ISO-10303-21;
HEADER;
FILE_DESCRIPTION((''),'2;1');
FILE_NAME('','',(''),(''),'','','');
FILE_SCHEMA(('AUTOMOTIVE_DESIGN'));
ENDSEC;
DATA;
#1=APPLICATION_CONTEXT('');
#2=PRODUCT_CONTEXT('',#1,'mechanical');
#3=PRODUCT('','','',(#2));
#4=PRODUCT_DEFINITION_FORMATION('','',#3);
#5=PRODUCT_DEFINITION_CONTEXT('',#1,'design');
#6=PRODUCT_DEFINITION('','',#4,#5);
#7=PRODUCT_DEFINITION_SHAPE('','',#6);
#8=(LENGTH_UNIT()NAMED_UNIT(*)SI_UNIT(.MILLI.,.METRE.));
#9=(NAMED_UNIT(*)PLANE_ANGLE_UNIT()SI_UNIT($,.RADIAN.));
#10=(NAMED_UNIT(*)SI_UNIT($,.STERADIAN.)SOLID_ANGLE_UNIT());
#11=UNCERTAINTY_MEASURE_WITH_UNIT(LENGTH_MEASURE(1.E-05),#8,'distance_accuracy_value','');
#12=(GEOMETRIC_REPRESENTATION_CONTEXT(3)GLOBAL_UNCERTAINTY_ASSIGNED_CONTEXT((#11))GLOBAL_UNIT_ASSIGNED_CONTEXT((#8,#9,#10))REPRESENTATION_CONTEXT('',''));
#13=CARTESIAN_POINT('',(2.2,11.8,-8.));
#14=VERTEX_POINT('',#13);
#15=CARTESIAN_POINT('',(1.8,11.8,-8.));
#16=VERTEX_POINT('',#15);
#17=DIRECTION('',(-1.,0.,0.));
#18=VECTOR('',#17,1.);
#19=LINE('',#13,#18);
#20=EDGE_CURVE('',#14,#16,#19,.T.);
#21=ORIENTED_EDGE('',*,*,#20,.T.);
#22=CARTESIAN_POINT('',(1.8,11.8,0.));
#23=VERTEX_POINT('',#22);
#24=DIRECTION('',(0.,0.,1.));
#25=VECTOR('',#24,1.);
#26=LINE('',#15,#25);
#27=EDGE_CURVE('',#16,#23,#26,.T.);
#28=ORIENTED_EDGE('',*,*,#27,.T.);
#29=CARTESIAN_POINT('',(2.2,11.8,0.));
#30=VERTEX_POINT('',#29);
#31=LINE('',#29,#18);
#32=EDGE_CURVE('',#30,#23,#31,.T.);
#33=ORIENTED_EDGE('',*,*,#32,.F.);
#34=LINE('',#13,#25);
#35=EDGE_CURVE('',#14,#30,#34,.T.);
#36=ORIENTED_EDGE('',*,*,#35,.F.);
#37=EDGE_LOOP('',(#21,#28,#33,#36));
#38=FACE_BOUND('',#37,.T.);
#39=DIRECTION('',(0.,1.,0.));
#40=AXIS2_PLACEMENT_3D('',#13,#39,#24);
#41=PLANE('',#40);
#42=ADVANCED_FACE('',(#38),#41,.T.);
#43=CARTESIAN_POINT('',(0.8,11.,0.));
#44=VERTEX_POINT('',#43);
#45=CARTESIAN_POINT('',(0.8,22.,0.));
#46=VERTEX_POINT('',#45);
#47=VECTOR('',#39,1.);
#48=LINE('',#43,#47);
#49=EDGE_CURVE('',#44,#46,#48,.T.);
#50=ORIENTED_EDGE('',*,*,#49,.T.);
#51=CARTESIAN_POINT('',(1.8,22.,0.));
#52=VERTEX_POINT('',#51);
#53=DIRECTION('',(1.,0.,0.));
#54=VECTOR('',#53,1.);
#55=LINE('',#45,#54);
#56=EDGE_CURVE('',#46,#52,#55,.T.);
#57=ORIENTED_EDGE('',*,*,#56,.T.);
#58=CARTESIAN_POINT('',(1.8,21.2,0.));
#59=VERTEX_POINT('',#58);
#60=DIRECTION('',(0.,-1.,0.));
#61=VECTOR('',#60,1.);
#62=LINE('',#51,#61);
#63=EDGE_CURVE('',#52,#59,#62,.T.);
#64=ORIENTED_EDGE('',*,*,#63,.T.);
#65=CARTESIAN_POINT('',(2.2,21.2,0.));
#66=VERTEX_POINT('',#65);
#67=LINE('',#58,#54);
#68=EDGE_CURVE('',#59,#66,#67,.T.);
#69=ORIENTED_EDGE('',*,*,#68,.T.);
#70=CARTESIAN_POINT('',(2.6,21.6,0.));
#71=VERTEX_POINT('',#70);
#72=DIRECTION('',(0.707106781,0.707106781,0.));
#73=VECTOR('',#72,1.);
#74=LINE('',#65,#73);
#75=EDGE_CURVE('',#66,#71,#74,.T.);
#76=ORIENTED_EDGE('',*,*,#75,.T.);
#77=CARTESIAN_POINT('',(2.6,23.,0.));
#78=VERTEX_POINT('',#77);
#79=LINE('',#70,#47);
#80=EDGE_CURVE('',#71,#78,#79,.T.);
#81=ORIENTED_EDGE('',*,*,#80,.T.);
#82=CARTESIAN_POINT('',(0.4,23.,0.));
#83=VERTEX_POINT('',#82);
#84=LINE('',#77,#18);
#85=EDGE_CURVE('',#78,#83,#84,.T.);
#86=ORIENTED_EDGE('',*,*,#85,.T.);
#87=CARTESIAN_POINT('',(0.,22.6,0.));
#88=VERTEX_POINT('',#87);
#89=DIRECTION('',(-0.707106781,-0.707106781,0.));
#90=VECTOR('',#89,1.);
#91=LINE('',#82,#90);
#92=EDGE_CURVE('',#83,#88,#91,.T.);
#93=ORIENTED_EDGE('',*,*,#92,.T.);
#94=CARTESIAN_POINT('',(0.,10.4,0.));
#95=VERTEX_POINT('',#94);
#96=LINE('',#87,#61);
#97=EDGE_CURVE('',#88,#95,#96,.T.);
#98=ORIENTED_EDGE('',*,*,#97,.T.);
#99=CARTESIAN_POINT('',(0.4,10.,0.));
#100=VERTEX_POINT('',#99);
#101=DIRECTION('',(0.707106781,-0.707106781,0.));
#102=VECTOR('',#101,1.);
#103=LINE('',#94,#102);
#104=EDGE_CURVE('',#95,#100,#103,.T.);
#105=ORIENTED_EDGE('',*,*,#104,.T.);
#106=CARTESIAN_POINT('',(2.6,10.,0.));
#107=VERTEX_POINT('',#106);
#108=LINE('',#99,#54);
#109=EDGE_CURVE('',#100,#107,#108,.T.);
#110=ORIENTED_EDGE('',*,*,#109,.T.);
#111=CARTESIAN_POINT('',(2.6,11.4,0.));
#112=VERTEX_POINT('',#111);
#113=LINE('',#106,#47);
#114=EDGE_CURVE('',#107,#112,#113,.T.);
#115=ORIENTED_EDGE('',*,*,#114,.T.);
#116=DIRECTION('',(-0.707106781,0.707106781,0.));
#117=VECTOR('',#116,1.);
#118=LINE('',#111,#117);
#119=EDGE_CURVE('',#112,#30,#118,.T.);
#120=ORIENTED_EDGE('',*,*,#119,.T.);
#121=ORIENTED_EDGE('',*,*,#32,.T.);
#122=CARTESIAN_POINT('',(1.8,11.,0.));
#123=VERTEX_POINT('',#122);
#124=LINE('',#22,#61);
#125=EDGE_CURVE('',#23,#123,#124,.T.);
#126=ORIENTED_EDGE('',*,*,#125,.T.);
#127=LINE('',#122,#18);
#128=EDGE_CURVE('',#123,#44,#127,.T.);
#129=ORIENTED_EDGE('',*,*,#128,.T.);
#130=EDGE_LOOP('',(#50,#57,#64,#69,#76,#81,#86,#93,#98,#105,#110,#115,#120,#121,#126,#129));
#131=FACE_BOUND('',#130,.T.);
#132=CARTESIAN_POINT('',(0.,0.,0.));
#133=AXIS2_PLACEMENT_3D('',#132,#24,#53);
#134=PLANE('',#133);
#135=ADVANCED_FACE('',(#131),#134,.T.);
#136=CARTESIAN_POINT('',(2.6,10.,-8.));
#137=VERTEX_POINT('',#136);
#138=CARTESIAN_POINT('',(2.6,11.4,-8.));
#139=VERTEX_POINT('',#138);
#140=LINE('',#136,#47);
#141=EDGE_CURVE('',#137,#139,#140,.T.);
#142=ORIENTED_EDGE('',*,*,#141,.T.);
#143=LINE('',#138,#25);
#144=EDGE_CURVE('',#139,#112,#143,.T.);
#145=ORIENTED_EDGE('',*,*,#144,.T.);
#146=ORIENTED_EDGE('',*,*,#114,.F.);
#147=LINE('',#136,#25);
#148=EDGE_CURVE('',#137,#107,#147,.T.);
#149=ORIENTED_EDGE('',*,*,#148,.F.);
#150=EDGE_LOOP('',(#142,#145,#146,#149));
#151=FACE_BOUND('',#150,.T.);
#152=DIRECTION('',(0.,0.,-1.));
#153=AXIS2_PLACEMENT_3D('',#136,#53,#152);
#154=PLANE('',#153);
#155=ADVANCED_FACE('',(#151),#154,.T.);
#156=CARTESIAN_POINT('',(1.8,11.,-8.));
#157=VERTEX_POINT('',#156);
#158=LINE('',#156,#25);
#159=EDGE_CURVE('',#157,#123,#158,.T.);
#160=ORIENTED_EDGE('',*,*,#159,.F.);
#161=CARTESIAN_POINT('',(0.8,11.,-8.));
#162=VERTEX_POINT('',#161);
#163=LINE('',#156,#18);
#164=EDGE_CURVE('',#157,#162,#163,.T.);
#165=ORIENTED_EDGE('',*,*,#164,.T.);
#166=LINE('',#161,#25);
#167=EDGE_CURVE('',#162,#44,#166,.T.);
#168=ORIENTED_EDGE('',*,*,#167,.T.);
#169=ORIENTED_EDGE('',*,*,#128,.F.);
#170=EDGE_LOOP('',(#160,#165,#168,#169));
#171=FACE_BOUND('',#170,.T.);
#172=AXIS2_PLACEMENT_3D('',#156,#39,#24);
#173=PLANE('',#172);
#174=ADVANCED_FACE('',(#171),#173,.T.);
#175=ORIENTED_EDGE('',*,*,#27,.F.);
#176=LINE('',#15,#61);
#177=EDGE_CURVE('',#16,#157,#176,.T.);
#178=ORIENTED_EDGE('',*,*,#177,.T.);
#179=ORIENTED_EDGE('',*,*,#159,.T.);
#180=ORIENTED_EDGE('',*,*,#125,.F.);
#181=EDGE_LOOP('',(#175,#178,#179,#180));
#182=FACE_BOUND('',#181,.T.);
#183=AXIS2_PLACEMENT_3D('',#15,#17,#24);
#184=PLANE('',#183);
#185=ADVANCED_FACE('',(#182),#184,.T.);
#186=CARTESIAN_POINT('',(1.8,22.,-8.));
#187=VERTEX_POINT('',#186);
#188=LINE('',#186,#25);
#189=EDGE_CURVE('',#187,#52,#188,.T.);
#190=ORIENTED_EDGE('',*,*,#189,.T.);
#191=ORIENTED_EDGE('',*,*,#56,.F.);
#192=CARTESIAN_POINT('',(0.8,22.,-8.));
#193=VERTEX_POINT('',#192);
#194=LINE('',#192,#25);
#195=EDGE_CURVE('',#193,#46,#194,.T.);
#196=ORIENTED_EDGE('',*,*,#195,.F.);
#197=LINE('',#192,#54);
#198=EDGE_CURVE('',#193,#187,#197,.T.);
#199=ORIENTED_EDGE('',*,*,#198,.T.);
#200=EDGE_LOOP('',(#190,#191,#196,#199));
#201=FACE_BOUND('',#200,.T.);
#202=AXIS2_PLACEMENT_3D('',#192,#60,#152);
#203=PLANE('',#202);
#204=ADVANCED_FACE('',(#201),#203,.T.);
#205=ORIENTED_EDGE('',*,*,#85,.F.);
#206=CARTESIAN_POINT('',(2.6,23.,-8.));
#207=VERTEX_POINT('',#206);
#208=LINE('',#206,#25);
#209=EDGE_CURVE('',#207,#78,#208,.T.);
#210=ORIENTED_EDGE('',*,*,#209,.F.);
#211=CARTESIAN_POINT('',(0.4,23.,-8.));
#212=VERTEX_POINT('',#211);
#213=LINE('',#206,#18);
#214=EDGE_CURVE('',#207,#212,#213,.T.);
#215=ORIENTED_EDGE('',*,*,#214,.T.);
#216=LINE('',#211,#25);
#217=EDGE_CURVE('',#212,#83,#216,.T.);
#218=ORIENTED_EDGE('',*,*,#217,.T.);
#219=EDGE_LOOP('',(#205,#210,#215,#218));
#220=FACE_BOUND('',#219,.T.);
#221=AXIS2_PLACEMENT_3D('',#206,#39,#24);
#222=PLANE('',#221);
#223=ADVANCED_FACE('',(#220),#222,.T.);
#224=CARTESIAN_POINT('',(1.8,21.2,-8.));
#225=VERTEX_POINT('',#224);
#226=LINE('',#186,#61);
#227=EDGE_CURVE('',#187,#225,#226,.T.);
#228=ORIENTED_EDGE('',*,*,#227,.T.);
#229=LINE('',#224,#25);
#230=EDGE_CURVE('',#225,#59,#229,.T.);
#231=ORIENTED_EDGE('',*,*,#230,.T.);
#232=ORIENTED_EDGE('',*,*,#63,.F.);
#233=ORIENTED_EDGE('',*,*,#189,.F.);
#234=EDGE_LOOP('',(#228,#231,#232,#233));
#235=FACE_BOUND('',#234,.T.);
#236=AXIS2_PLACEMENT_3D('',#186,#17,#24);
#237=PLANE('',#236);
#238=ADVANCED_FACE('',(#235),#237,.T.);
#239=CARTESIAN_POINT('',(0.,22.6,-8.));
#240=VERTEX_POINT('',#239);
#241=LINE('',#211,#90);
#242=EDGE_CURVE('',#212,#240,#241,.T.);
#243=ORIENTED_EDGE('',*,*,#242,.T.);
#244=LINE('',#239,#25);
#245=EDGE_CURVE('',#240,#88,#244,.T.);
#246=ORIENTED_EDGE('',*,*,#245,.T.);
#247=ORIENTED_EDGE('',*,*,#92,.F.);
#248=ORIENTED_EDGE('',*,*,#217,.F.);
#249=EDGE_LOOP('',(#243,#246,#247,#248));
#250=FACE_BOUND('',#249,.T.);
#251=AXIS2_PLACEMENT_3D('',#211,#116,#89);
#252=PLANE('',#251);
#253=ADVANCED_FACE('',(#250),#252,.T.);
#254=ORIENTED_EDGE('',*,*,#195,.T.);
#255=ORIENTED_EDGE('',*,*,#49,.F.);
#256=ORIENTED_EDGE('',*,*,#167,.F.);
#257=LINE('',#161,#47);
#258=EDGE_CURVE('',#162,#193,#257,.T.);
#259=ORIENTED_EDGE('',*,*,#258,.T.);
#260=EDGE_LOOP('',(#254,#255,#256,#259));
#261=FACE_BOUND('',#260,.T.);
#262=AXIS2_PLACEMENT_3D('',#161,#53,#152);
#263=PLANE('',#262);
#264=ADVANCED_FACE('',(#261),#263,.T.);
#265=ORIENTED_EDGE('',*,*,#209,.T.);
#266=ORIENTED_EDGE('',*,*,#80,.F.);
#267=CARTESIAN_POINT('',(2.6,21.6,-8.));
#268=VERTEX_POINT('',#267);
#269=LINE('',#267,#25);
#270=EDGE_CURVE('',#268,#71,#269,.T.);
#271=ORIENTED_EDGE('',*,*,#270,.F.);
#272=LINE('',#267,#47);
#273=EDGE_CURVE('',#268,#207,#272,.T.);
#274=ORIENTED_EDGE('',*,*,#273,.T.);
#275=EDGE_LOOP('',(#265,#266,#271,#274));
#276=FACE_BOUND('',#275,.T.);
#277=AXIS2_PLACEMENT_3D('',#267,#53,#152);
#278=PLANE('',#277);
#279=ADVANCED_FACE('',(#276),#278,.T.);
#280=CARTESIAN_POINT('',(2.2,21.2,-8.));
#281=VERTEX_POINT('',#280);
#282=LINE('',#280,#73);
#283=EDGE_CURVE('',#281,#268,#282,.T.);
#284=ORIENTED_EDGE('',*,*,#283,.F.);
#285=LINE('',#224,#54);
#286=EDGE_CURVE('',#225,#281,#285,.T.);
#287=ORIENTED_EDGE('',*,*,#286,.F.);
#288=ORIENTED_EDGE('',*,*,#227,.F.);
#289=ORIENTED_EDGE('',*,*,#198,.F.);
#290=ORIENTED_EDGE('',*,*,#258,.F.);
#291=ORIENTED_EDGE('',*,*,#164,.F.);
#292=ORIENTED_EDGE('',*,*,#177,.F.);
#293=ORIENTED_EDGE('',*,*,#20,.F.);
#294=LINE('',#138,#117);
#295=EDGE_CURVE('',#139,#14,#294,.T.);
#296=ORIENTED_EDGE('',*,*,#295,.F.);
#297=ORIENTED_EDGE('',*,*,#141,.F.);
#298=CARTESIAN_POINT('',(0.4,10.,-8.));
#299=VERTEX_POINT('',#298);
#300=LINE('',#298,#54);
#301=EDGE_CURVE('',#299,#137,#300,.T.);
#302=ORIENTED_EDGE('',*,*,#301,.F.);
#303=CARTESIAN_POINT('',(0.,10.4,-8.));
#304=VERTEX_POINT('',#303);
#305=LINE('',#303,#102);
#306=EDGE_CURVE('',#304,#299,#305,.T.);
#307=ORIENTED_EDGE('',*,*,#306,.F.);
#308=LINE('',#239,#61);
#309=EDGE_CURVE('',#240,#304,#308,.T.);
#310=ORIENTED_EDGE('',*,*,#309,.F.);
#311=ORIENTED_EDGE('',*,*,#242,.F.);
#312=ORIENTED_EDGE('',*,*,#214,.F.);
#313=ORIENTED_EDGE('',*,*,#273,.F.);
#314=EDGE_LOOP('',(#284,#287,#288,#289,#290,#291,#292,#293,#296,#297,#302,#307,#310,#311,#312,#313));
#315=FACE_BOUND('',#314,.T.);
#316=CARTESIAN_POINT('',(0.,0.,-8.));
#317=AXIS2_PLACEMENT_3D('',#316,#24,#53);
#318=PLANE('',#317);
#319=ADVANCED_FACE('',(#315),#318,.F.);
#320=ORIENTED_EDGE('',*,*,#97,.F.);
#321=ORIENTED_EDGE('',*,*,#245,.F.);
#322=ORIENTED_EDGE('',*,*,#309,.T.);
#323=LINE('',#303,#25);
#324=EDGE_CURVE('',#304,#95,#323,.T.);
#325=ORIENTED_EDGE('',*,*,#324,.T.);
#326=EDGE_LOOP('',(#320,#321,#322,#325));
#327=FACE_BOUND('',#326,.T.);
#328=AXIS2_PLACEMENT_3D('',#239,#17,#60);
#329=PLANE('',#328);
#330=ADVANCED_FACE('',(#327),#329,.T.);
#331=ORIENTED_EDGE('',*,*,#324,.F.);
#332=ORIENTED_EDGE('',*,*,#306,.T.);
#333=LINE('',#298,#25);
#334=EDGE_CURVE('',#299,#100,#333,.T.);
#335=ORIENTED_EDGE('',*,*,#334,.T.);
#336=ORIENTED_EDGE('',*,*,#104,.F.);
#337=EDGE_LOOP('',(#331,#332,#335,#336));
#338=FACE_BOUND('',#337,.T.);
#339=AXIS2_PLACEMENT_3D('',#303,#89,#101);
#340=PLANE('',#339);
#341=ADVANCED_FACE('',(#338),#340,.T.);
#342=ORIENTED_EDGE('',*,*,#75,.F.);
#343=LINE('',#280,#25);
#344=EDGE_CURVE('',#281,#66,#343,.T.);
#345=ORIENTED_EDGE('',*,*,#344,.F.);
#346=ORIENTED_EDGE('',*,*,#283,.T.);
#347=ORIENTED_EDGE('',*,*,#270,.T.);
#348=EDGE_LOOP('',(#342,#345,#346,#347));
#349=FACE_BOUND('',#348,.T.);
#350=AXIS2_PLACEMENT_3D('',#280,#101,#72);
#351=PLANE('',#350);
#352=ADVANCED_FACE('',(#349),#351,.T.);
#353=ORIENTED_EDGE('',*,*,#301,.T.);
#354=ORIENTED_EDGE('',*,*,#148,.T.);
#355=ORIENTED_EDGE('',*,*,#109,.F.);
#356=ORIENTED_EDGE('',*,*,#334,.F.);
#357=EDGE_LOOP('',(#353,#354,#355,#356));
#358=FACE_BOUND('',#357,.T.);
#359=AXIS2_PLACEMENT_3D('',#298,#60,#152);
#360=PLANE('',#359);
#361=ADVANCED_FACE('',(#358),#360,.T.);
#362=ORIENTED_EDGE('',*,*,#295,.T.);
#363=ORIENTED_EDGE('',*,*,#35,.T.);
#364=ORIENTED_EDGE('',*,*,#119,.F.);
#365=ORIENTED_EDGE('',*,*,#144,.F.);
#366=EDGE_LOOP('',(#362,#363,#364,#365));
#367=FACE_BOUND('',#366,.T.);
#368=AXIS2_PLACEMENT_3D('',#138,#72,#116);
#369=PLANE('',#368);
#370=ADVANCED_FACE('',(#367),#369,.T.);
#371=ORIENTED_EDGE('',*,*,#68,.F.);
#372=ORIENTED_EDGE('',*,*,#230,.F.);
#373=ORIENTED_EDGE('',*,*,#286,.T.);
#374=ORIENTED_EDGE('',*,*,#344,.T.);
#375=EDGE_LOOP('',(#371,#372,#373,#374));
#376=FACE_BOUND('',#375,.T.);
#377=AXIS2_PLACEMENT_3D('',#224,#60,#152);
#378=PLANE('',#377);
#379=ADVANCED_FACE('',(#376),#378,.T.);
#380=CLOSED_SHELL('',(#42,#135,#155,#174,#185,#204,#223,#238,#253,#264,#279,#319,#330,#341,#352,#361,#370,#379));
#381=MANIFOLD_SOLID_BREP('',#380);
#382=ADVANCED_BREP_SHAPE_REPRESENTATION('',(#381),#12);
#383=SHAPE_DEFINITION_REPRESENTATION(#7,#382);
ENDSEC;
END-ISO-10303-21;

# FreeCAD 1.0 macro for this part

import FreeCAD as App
import Part
import Sketcher
from FreeCAD import Vector
Q = App.Units.Quantity


def add_polygon(sketch, points):
    """Adds a closed chain of lines whose ends are joined by coincident constraints."""
    first, n = sketch.GeometryCount, len(points)
    for a, b in zip(points, points[1:] + points[:1]):
        sketch.addGeometry(Part.LineSegment(App.Vector(*a, 0), App.Vector(*b, 0)), False)
    for i in range(n):
        sketch.addConstraint(Sketcher.Constraint("Coincident", first + i, 2, first + (i + 1) % n, 1))

doc = App.newDocument("Part")
body = doc.addObject("PartDesign::Body", "Body")

# Sketch on XY plane
sketch1 = body.newObject("Sketcher::SketchObject", "Sketch")
sketch1.AttachmentSupport = (doc.getObject("XY_Plane"), [""])
sketch1.MapMode = "FlatFace"
add_polygon(sketch1, [(2.2, 21.2), (2.6, 21.6), (2.6, 23), (0.4, 23), (0, 22.6), (0, 10.4), (0.4, 10), (2.6, 10), (2.6, 11.4), (2.2, 11.8), (1.8, 11.8), (1.8, 11), (0.8, 11), (0.8, 22), (1.8, 22), (1.8, 21.2)])  # lines 0-15
sketch1.addConstraint([
    Sketcher.Constraint("Vertical", 1),
    Sketcher.Constraint("Horizontal", 2),
    Sketcher.Constraint("Vertical", 4),
    Sketcher.Constraint("Horizontal", 6),
    Sketcher.Constraint("Vertical", 7),
    Sketcher.Constraint("Horizontal", 9),
    Sketcher.Constraint("Vertical", 10),
    Sketcher.Constraint("Horizontal", 11),
    Sketcher.Constraint("Vertical", 12),
    Sketcher.Constraint("Horizontal", 13),
    Sketcher.Constraint("Vertical", 14),
    Sketcher.Constraint("Horizontal", 15),
    Sketcher.Constraint("PointOnObject", 3, 2, -2),
    Sketcher.Constraint("Parallel", 0, 3),
    Sketcher.Constraint("Perpendicular", 3, 5),
    Sketcher.Constraint("Parallel", 5, 8),
    Sketcher.Constraint("Vertical", 2, 2, 5, 2),
    Sketcher.Constraint("Vertical", 1, 2, 6, 2),
    Sketcher.Constraint("Vertical", 10, 2, 13, 2),
    Sketcher.Constraint("Vertical", 8, 2, 15, 2),
    Sketcher.Constraint("Equal", 1, 7),
    Sketcher.Constraint("Equal", 10, 14),
    Sketcher.Constraint("Equal", 0, 3),
    Sketcher.Constraint("Equal", 3, 5),
    Sketcher.Constraint("DistanceX", 11, 2, 11, 1, Q("1 mm")),
    Sketcher.Constraint("DistanceY", 12, 1, 12, 2, Q("11 mm")),
    Sketcher.Constraint("DistanceX", 2, 2, 2, 1, Q("2.2 mm")),
    Sketcher.Constraint("DistanceX", 9, 2, 9, 1, Q("0.4 mm")),
    Sketcher.Constraint("DistanceY", 1, 1, 1, 2, Q("1.4 mm")),
    Sketcher.Constraint("DistanceY", 4, 2, 4, 1, Q("12.2 mm")),
    Sketcher.Constraint("DistanceY", -1, 1, 1, 2, Q("23 mm")),
    Sketcher.Constraint("DistanceY", -1, 1, 5, 2, Q("10 mm")),
])
pad1 = body.newObject("PartDesign::Pad", "Pad")
pad1.Profile = sketch1
pad1.Length = 8
pad1.Reversed = True

doc.recompute()
